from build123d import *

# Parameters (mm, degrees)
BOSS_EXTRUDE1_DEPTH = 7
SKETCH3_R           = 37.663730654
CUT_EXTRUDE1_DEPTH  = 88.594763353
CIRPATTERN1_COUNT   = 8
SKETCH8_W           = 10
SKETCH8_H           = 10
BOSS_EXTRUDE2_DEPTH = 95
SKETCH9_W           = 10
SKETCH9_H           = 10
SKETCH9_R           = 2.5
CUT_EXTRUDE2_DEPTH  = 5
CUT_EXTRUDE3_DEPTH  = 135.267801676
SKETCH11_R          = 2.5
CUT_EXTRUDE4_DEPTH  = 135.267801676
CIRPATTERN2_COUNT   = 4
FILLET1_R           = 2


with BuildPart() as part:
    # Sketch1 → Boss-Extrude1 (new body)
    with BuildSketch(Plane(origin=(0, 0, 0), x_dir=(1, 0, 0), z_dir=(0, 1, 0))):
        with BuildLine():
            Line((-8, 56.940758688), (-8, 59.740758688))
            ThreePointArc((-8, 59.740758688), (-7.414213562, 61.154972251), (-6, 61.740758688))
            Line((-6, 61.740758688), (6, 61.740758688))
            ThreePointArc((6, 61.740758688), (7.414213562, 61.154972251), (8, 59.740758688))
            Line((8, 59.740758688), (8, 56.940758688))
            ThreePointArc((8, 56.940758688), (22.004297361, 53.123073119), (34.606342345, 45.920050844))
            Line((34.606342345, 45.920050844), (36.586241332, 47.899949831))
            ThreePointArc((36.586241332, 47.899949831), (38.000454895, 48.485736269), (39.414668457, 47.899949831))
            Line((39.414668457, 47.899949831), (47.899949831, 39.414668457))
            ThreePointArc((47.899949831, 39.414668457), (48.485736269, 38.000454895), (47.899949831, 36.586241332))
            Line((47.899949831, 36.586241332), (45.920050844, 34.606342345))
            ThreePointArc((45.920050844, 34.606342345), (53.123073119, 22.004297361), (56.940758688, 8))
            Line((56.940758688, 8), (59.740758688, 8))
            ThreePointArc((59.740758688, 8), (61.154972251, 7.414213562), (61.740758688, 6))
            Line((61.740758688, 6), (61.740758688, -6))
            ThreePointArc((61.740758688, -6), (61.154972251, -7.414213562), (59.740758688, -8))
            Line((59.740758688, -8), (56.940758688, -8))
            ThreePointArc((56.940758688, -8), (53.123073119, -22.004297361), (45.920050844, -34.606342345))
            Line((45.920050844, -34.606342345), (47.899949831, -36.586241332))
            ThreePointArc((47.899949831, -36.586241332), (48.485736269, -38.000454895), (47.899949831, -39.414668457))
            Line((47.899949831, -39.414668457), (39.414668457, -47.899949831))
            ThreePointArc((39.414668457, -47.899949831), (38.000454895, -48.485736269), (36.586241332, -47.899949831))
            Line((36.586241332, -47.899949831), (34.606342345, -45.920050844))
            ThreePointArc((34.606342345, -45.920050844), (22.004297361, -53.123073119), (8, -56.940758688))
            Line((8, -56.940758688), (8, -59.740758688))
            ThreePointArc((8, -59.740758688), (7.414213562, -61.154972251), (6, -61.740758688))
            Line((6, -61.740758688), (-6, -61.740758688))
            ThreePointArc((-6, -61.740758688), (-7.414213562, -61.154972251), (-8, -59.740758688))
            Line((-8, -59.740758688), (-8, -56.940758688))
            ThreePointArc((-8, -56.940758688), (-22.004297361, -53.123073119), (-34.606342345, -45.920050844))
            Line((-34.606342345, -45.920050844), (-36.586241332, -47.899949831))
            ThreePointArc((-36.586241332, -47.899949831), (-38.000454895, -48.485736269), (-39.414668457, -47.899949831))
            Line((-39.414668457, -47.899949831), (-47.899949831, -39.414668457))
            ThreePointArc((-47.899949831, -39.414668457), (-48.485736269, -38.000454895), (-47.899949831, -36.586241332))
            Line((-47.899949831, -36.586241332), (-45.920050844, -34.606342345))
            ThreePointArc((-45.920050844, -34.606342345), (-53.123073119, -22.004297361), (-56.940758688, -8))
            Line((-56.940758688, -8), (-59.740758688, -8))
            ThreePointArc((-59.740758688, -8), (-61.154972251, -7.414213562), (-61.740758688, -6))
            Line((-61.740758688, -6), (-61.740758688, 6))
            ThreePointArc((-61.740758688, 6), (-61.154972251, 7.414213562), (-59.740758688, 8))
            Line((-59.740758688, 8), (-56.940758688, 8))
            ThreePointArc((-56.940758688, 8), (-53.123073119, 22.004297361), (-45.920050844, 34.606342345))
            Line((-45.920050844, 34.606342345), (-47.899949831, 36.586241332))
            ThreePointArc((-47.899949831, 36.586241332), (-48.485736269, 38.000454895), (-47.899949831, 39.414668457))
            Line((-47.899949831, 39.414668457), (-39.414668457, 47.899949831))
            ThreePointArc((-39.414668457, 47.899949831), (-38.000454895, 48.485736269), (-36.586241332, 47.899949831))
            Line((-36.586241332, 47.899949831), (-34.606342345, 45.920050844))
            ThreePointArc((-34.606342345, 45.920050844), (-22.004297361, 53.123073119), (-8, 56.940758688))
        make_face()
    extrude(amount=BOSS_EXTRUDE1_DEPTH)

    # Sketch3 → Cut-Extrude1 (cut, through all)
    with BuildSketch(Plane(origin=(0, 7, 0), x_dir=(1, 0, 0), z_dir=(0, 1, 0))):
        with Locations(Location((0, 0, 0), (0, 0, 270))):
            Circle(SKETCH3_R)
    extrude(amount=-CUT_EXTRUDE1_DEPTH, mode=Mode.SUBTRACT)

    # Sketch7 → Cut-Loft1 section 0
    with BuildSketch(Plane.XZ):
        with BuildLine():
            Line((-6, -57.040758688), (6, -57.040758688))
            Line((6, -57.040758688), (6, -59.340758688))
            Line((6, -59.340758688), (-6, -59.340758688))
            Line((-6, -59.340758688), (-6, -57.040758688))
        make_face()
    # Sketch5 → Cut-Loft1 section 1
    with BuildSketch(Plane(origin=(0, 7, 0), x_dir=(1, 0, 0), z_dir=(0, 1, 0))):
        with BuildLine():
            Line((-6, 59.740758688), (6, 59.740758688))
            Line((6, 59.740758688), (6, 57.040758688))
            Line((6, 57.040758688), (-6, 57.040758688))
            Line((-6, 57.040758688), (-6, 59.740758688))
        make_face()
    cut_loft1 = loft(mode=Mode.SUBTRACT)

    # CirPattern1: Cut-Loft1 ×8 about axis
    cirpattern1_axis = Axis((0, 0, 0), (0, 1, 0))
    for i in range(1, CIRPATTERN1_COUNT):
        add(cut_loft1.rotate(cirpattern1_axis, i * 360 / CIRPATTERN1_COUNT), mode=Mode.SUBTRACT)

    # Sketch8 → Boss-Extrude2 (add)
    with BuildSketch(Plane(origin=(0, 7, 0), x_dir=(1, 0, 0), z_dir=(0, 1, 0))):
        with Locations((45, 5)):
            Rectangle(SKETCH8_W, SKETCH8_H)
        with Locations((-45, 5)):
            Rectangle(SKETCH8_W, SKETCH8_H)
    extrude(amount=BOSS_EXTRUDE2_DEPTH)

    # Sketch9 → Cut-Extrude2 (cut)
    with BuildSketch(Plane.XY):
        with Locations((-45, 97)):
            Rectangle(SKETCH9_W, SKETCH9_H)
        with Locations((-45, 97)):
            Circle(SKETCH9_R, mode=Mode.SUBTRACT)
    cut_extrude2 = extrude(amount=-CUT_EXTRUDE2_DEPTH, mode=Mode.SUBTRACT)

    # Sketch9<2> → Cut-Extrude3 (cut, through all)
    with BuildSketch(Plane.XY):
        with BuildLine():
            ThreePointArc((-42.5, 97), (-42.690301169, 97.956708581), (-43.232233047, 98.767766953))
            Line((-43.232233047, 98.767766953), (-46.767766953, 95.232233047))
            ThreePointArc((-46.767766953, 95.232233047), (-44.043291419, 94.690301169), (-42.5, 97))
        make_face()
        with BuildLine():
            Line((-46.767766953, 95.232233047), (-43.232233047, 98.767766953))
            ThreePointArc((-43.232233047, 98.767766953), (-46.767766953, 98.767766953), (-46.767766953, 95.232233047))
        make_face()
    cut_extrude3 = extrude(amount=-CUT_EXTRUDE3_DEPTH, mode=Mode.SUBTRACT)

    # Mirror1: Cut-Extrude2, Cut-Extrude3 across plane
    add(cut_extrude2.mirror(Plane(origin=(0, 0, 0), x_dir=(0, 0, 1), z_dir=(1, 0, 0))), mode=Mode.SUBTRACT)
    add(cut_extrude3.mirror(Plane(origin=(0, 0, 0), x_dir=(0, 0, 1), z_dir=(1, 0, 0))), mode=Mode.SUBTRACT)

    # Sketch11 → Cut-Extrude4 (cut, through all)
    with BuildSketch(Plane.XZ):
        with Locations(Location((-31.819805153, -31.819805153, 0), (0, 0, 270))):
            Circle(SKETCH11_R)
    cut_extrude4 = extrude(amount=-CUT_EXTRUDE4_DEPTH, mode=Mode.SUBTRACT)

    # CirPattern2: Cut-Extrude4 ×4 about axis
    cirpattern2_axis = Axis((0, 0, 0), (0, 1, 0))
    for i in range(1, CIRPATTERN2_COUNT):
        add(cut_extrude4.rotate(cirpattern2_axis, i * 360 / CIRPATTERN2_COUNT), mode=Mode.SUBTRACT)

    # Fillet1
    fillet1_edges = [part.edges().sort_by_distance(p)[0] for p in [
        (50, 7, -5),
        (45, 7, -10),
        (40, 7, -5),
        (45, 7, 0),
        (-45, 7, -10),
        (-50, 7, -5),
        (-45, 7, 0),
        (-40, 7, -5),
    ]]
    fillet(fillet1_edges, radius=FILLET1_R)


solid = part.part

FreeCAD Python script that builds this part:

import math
import FreeCAD as App
import Part
import Sketcher


def edges_at(feature, points):
    """Names of the edges that pass closest to the given points."""
    edges = feature.Shape.Edges
    near = lambda p: min(range(len(edges)), key=lambda i: edges[i].distToShape(Part.Vertex(*p))[0])
    return sorted({f"Edge{near(p) + 1}" for p in points})


def add_polygon(sketch, points):
    """Adds a closed chain of lines whose ends are joined by coincident constraints."""
    first, n = sketch.GeometryCount, len(points)
    for a, b in zip(points, points[1:] + points[:1]):
        sketch.addGeometry(Part.LineSegment(App.Vector(*a, 0), App.Vector(*b, 0)), False)
    for i in range(n):
        sketch.addConstraint(Sketcher.Constraint("Coincident", first + i, 2, first + (i + 1) % n, 1))

doc = App.newDocument("Part")
body = doc.addObject("PartDesign::Body", "Body")

# Sketch on XZ plane
sketch1 = body.newObject("Sketcher::SketchObject", "Sketch")
sketch1.AttachmentSupport = (doc.getObject("XZ_Plane"), [""])
sketch1.MapMode = "FlatFace"
sketch1.addGeometry([
    Part.LineSegment(App.Vector(-8, -59.7, 0), App.Vector(-8, -56.9, 0)),  # 0
    Part.ArcOfCircle(Part.Circle(App.Vector(0, 0, 0), App.Vector(0, 0, 1), 57.5), math.radians(-127), math.radians(-98)),  # 1
    Part.LineSegment(App.Vector(-34.6, -45.9, 0), App.Vector(-36.6, -47.9, 0)),  # 2
    Part.ArcOfCircle(Part.Circle(App.Vector(-38, -46.5, 0), App.Vector(0, 0, 1), 2), math.radians(-135), math.radians(-45)),  # 3
    Part.LineSegment(App.Vector(-39.4, -47.9, 0), App.Vector(-47.9, -39.4, 0)),  # 4
    Part.ArcOfCircle(Part.Circle(App.Vector(-46.5, -38, 0), App.Vector(0, 0, 1), 2), math.radians(135), math.radians(225)),  # 5
    Part.LineSegment(App.Vector(-47.9, -36.6, 0), App.Vector(-45.9, -34.6, 0)),  # 6
    Part.ArcOfCircle(Part.Circle(App.Vector(0, 0, 0), App.Vector(0, 0, 1), 57.5), math.radians(-172), math.radians(-143)),  # 7
    Part.LineSegment(App.Vector(-56.9, -8, 0), App.Vector(-59.7, -8, 0)),  # 8
    Part.ArcOfCircle(Part.Circle(App.Vector(-59.7, -6, 0), App.Vector(0, 0, 1), 2), math.radians(180), math.radians(270)),  # 9
    Part.LineSegment(App.Vector(-61.7, -6, 0), App.Vector(-61.7, 6, 0)),  # 10
    Part.ArcOfCircle(Part.Circle(App.Vector(-59.7, 6, 0), App.Vector(0, 0, 1), 2), math.radians(90), math.radians(180)),  # 11
    Part.LineSegment(App.Vector(-59.7, 8, 0), App.Vector(-56.9, 8, 0)),  # 12
    Part.ArcOfCircle(Part.Circle(App.Vector(0, 0, 0), App.Vector(0, 0, 1), 57.5), math.radians(143), math.radians(172)),  # 13
    Part.LineSegment(App.Vector(-45.9, 34.6, 0), App.Vector(-47.9, 36.6, 0)),  # 14
    Part.ArcOfCircle(Part.Circle(App.Vector(-46.5, 38, 0), App.Vector(0, 0, 1), 2), math.radians(135), math.radians(225)),  # 15
    Part.LineSegment(App.Vector(-47.9, 39.4, 0), App.Vector(-39.4, 47.9, 0)),  # 16
    Part.ArcOfCircle(Part.Circle(App.Vector(-38, 46.5, 0), App.Vector(0, 0, 1), 2), math.radians(45), math.radians(135)),  # 17
    Part.LineSegment(App.Vector(-36.6, 47.9, 0), App.Vector(-34.6, 45.9, 0)),  # 18
    Part.ArcOfCircle(Part.Circle(App.Vector(0, 0, 0), App.Vector(0, 0, 1), 57.5), math.radians(98), math.radians(127)),  # 19
    Part.LineSegment(App.Vector(-8, 56.9, 0), App.Vector(-8, 59.7, 0)),  # 20
    Part.ArcOfCircle(Part.Circle(App.Vector(-6, 59.7, 0), App.Vector(0, 0, 1), 2), math.radians(90), math.radians(180)),  # 21
    Part.LineSegment(App.Vector(-6, 61.7, 0), App.Vector(6, 61.7, 0)),  # 22
    Part.ArcOfCircle(Part.Circle(App.Vector(6, 59.7, 0), App.Vector(0, 0, 1), 2), math.radians(0), math.radians(90)),  # 23
    Part.LineSegment(App.Vector(8, 59.7, 0), App.Vector(8, 56.9, 0)),  # 24
    Part.ArcOfCircle(Part.Circle(App.Vector(0, 0, 0), App.Vector(0, 0, 1), 57.5), math.radians(53), math.radians(82)),  # 25
    Part.LineSegment(App.Vector(34.6, 45.9, 0), App.Vector(36.6, 47.9, 0)),  # 26
    Part.ArcOfCircle(Part.Circle(App.Vector(38, 46.5, 0), App.Vector(0, 0, 1), 2), math.radians(45), math.radians(135)),  # 27
    Part.LineSegment(App.Vector(39.4, 47.9, 0), App.Vector(47.9, 39.4, 0)),  # 28
    Part.ArcOfCircle(Part.Circle(App.Vector(46.5, 38, 0), App.Vector(0, 0, 1), 2), math.radians(-45), math.radians(45)),  # 29
    Part.LineSegment(App.Vector(47.9, 36.6, 0), App.Vector(45.9, 34.6, 0)),  # 30
    Part.ArcOfCircle(Part.Circle(App.Vector(0, 0, 0), App.Vector(0, 0, 1), 57.5), math.radians(8), math.radians(37)),  # 31
    Part.LineSegment(App.Vector(56.9, 8, 0), App.Vector(59.7, 8, 0)),  # 32
    Part.ArcOfCircle(Part.Circle(App.Vector(59.7, 6, 0), App.Vector(0, 0, 1), 2), math.radians(0), math.radians(90)),  # 33
    Part.LineSegment(App.Vector(61.7, 6, 0), App.Vector(61.7, -6, 0)),  # 34
    Part.ArcOfCircle(Part.Circle(App.Vector(59.7, -6, 0), App.Vector(0, 0, 1), 2), math.radians(-90), math.radians(0)),  # 35
    Part.LineSegment(App.Vector(59.7, -8, 0), App.Vector(56.9, -8, 0)),  # 36
    Part.ArcOfCircle(Part.Circle(App.Vector(0, 0, 0), App.Vector(0, 0, 1), 57.5), math.radians(-37), math.radians(-8)),  # 37
    Part.LineSegment(App.Vector(45.9, -34.6, 0), App.Vector(47.9, -36.6, 0)),  # 38
    Part.ArcOfCircle(Part.Circle(App.Vector(46.5, -38, 0), App.Vector(0, 0, 1), 2), math.radians(-45), math.radians(45)),  # 39
    Part.LineSegment(App.Vector(47.9, -39.4, 0), App.Vector(39.4, -47.9, 0)),  # 40
    Part.ArcOfCircle(Part.Circle(App.Vector(38, -46.5, 0), App.Vector(0, 0, 1), 2), math.radians(-135), math.radians(-45)),  # 41
    Part.LineSegment(App.Vector(36.6, -47.9, 0), App.Vector(34.6, -45.9, 0)),  # 42
    Part.ArcOfCircle(Part.Circle(App.Vector(0, 0, 0), App.Vector(0, 0, 1), 57.5), math.radians(-82), math.radians(-53)),  # 43
    Part.LineSegment(App.Vector(8, -56.9, 0), App.Vector(8, -59.7, 0)),  # 44
    Part.ArcOfCircle(Part.Circle(App.Vector(6, -59.7, 0), App.Vector(0, 0, 1), 2), math.radians(-90), math.radians(0)),  # 45
    Part.LineSegment(App.Vector(6, -61.7, 0), App.Vector(-6, -61.7, 0)),  # 46
    Part.ArcOfCircle(Part.Circle(App.Vector(-6, -59.7, 0), App.Vector(0, 0, 1), 2), math.radians(180), math.radians(270)),  # 47
], False)
sketch1.addConstraint([
    Sketcher.Constraint("Coincident", 0, 2, 1, 2),
    Sketcher.Constraint("Coincident", 1, 1, 2, 1),
    Sketcher.Constraint("Tangent", 2, 2, 3, 2),
    Sketcher.Constraint("Tangent", 3, 1, 4, 1),
    Sketcher.Constraint("Tangent", 4, 2, 5, 2),
    Sketcher.Constraint("Tangent", 5, 1, 6, 1),
    Sketcher.Constraint("Coincident", 6, 2, 7, 2),
    Sketcher.Constraint("Coincident", 7, 1, 8, 1),
    Sketcher.Constraint("Tangent", 8, 2, 9, 2),
    Sketcher.Constraint("Tangent", 9, 1, 10, 1),
    Sketcher.Constraint("Tangent", 10, 2, 11, 2),
    Sketcher.Constraint("Tangent", 11, 1, 12, 1),
    Sketcher.Constraint("Coincident", 12, 2, 13, 2),
    Sketcher.Constraint("Coincident", 13, 1, 14, 1),
    Sketcher.Constraint("Tangent", 14, 2, 15, 2),
    Sketcher.Constraint("Tangent", 15, 1, 16, 1),
    Sketcher.Constraint("Tangent", 16, 2, 17, 2),
    Sketcher.Constraint("Tangent", 17, 1, 18, 1),
    Sketcher.Constraint("Coincident", 18, 2, 19, 2),
    Sketcher.Constraint("Coincident", 19, 1, 20, 1),
    Sketcher.Constraint("Tangent", 20, 2, 21, 2),
    Sketcher.Constraint("Tangent", 21, 1, 22, 1),
    Sketcher.Constraint("Tangent", 22, 2, 23, 2),
    Sketcher.Constraint("Tangent", 23, 1, 24, 1),
    Sketcher.Constraint("Coincident", 24, 2, 25, 2),
    Sketcher.Constraint("Coincident", 25, 1, 26, 1),
    Sketcher.Constraint("Tangent", 26, 2, 27, 2),
    Sketcher.Constraint("Tangent", 27, 1, 28, 1),
    Sketcher.Constraint("Tangent", 28, 2, 29, 2),
    Sketcher.Constraint("Tangent", 29, 1, 30, 1),
    Sketcher.Constraint("Coincident", 30, 2, 31, 2),
    Sketcher.Constraint("Coincident", 31, 1, 32, 1),
    Sketcher.Constraint("Tangent", 32, 2, 33, 2),
    Sketcher.Constraint("Tangent", 33, 1, 34, 1),
    Sketcher.Constraint("Tangent", 34, 2, 35, 2),
    Sketcher.Constraint("Tangent", 35, 1, 36, 1),
    Sketcher.Constraint("Coincident", 36, 2, 37, 2),
    Sketcher.Constraint("Coincident", 37, 1, 38, 1),
    Sketcher.Constraint("Tangent", 38, 2, 39, 2),
    Sketcher.Constraint("Tangent", 39, 1, 40, 1),
    Sketcher.Constraint("Tangent", 40, 2, 41, 2),
    Sketcher.Constraint("Tangent", 41, 1, 42, 1),
    Sketcher.Constraint("Coincident", 42, 2, 43, 2),
    Sketcher.Constraint("Coincident", 43, 1, 44, 1),
    Sketcher.Constraint("Tangent", 44, 2, 45, 2),
    Sketcher.Constraint("Tangent", 45, 1, 46, 1),
    Sketcher.Constraint("Tangent", 46, 2, 47, 2),
    Sketcher.Constraint("Tangent", 47, 1, 0, 1),
    Sketcher.Constraint("Vertical", 0),
    Sketcher.Constraint("Horizontal", 8),
    Sketcher.Constraint("Vertical", 10),
    Sketcher.Constraint("Horizontal", 12),
    Sketcher.Constraint("Vertical", 20),
    Sketcher.Constraint("Horizontal", 22),
    Sketcher.Constraint("Vertical", 24),
    Sketcher.Constraint("Horizontal", 32),
    Sketcher.Constraint("Vertical", 34),
    Sketcher.Constraint("Horizontal", 36),
    Sketcher.Constraint("Vertical", 44),
    Sketcher.Constraint("Horizontal", 46),
    Sketcher.Constraint("Coincident", 1, 3, -1, 1),
    Sketcher.Constraint("Coincident", 7, 3, -1, 1),
    Sketcher.Constraint("Coincident", 13, 3, -1, 1),
    Sketcher.Constraint("Coincident", 19, 3, -1, 1),
    Sketcher.Constraint("Coincident", 25, 3, -1, 1),
    Sketcher.Constraint("Coincident", 31, 3, -1, 1),
    Sketcher.Constraint("Coincident", 37, 3, -1, 1),
    Sketcher.Constraint("Coincident", 43, 3, -1, 1),
    Sketcher.Constraint("Equal", 3, 5),
    Sketcher.Constraint("Equal", 1, 7),
    Sketcher.Constraint("Equal", 5, 9),
    Sketcher.Constraint("Equal", 9, 11),
    Sketcher.Constraint("Equal", 7, 13),
    Sketcher.Constraint("Equal", 11, 15),
    Sketcher.Constraint("Equal", 15, 17),
    Sketcher.Constraint("Equal", 13, 19),
    Sketcher.Constraint("Equal", 17, 21),
    Sketcher.Constraint("Equal", 21, 23),
    Sketcher.Constraint("Equal", 19, 25),
    Sketcher.Constraint("Equal", 23, 27),
    Sketcher.Constraint("Equal", 27, 29),
    Sketcher.Constraint("Equal", 25, 31),
    Sketcher.Constraint("Equal", 29, 33),
    Sketcher.Constraint("Equal", 33, 35),
    Sketcher.Constraint("Equal", 31, 37),
    Sketcher.Constraint("Equal", 35, 39),
    Sketcher.Constraint("Equal", 39, 41),
    Sketcher.Constraint("Equal", 37, 43),
    Sketcher.Constraint("Equal", 41, 45),
    Sketcher.Constraint("Equal", 45, 47),
    Sketcher.Constraint("Symmetric", 3, 3, 27, 3, -1, 1),
    Sketcher.Constraint("Symmetric", 5, 3, 29, 3, -1, 1),
    Sketcher.Constraint("Symmetric", 9, 3, 33, 3, -1, 1),
    Sketcher.Constraint("Symmetric", 15, 3, 39, 3, -1, 1),
    Sketcher.Constraint("Symmetric", 17, 3, 41, 3, -1, 1),
    Sketcher.Constraint("Symmetric", 21, 3, 45, 3, -1, 1),
    Sketcher.Constraint("Symmetric", 17, 3, 27, 3, -2),
    Sketcher.Constraint("Symmetric", 15, 3, 29, 3, -2),
    Sketcher.Constraint("Perpendicular", 2, 4),
    Sketcher.Constraint("Perpendicular", 4, 6),
    Sketcher.Constraint("Perpendicular", 6, 14),
    Sketcher.Constraint("Perpendicular", 14, 16),
    Sketcher.Constraint("Perpendicular", 16, 18),
    Sketcher.Constraint("Perpendicular", 18, 26),
    Sketcher.Constraint("Perpendicular", 28, 30),
    Sketcher.Constraint("Perpendicular", 30, 38),
    Sketcher.Constraint("Perpendicular", 40, 42),
    Sketcher.Constraint("Horizontal", 11, 3, 33, 3),
    Sketcher.Constraint("Horizontal", 9, 3, 35, 3),
    Sketcher.Constraint("Horizontal", 19, 1, 24, 2),
    Sketcher.Constraint("Horizontal", 0, 2, 43, 1),
    Sketcher.Constraint("Equal", 36, 0),
    Sketcher.Constraint("Equal", 46, 10),
    Sketcher.Constraint("Equal", 2, 6),
    Sketcher.Constraint("Radius", 3, 2.0),
    Sketcher.Constraint("Radius", 1, 57.5),
    Sketcher.Constraint("DistanceX", 22, 1, 22, 2, 12.0),
    Sketcher.Constraint("Distance", 4, 12.0),
    Sketcher.Constraint("DistanceX", 8, 2, 8, 1, 2.8),
    Sketcher.Constraint("Distance", 2, 2.8),
])
pad1 = body.newObject("PartDesign::Pad", "Pad")
pad1.Profile = sketch1
pad1.Length = 7
pad1.Reversed = True

# Sketch on XZ plane
sketch2 = body.newObject("Sketcher::SketchObject", "Sketch001")
sketch2.AttachmentSupport = (doc.getObject("XZ_Plane"), [""])
sketch2.MapMode = "FlatFace"
sketch2.AttachmentOffset = App.Placement(App.Vector(0, 0, -7), App.Rotation())
sketch2.addGeometry(Part.Circle(App.Vector(0, 0, 0), App.Vector(0, 0, 1), 38), False)
sketch2.addConstraint([
    Sketcher.Constraint("Coincident", 0, 3, -1, 1),
    Sketcher.Constraint("Diameter", 0, 75.327461),
])
pocket1 = body.newObject("PartDesign::Pocket", "Pocket")
pocket1.Profile = sketch2
pocket1.Type = "ThroughAll"
pocket1.Reversed = True

# Sketch on XZ plane
sketch3 = body.newObject("Sketcher::SketchObject", "Sketch002")
sketch3.AttachmentSupport = (doc.getObject("XZ_Plane"), [""])
sketch3.MapMode = "FlatFace"
add_polygon(sketch3, [(6, -57), (-6, -57), (-6, -59.3), (6, -59.3)])  # lines 0-3
sketch3.addConstraint([
    Sketcher.Constraint("Horizontal", 0),
    Sketcher.Constraint("Vertical", 1),
    Sketcher.Constraint("Horizontal", 2),
    Sketcher.Constraint("Vertical", 3),
    Sketcher.Constraint("DistanceX", 0, 2, 0, 1, 12.0),
    Sketcher.Constraint("DistanceY", 1, 2, 1, 1, 2.3),
    Sketcher.Constraint("DistanceX", 0, 2, -1, 1, 6.0),
    Sketcher.Constraint("DistanceY", 0, 2, -1, 1, 57.040759),
])

# Sketch on XZ plane
sketch4 = body.newObject("Sketcher::SketchObject", "Sketch003")
sketch4.AttachmentSupport = (doc.getObject("XZ_Plane"), [""])
sketch4.MapMode = "FlatFace"
sketch4.AttachmentOffset = App.Placement(App.Vector(0, 0, -7), App.Rotation())
add_polygon(sketch4, [(6, -59.7), (-6, -59.7), (-6, -57), (6, -57)])  # lines 0-3
sketch4.addConstraint([
    Sketcher.Constraint("Horizontal", 0),
    Sketcher.Constraint("Vertical", 1),
    Sketcher.Constraint("Horizontal", 2),
    Sketcher.Constraint("Vertical", 3),
    Sketcher.Constraint("DistanceX", 0, 2, 0, 1, 12.0),
    Sketcher.Constraint("DistanceY", 1, 1, 1, 2, 2.7),
    Sketcher.Constraint("DistanceX", 0, 2, -1, 1, 6.0),
    Sketcher.Constraint("DistanceY", 0, 2, -1, 1, 59.740759),
])

subtractiveloft = body.newObject("PartDesign::SubtractiveLoft", "SubtractiveLoft")
subtractiveloft.Profile = sketch3
subtractiveloft.Sections = [sketch4]
doc.recompute()

polarpattern = body.newObject("PartDesign::PolarPattern", "PolarPattern")
polarpattern.Originals = [subtractiveloft]
polarpattern.Axis = (doc.getObject("Y_Axis"), [""])
polarpattern.Angle = 360
polarpattern.Occurrences = 8
body.Tip = polarpattern

# Sketch on XZ plane
sketch5 = body.newObject("Sketcher::SketchObject", "Sketch004")
sketch5.AttachmentSupport = (doc.getObject("XZ_Plane"), [""])
sketch5.MapMode = "FlatFace"
sketch5.AttachmentOffset = App.Placement(App.Vector(0, 0, -7), App.Rotation())
add_polygon(sketch5, [(40, -10), (40, 0), (50, 0), (50, -10)])  # lines 0-3
add_polygon(sketch5, [(-50, -10), (-50, 0), (-40, 0), (-40, -10)])  # lines 4-7
sketch5.addConstraint([
    Sketcher.Constraint("Vertical", 0),
    Sketcher.Constraint("Horizontal", 1),
    Sketcher.Constraint("Vertical", 2),
    Sketcher.Constraint("Horizontal", 3),
    Sketcher.Constraint("Vertical", 4),
    Sketcher.Constraint("Horizontal", 5),
    Sketcher.Constraint("Vertical", 6),
    Sketcher.Constraint("Horizontal", 7),
    Sketcher.Constraint("Symmetric", 1, 2, 4, 2, -1, 1),
    Sketcher.Constraint("Symmetric", 0, 2, 5, 2, -2),
    Sketcher.Constraint("Horizontal", 3, 2, 6, 2),
    Sketcher.Constraint("Equal", 7, 0),
    Sketcher.Constraint("DistanceX", 1, 1, 1, 2, 10.0),
    Sketcher.Constraint("DistanceX", -1, 1, 0, 2, 40.0),
])
pad2 = body.newObject("PartDesign::Pad", "Pad001")
pad2.Profile = sketch5
pad2.Length = 95
pad2.Reversed = True

# Sketch on XY plane
sketch6 = body.newObject("Sketcher::SketchObject", "Sketch005")
sketch6.AttachmentSupport = (doc.getObject("XY_Plane"), [""])
sketch6.MapMode = "FlatFace"
add_polygon(sketch6, [(-50, 102), (-50, 92), (-40, 92), (-40, 102)])  # lines 0-3
sketch6.addGeometry(Part.Circle(App.Vector(-45, 97, 0), App.Vector(0, 0, 1), 2.5), False)  # 4
sketch6.addConstraint([
    Sketcher.Constraint("Vertical", 0),
    Sketcher.Constraint("Horizontal", 1),
    Sketcher.Constraint("Vertical", 2),
    Sketcher.Constraint("Horizontal", 3),
    Sketcher.Constraint("Equal", 3, 0),
    Sketcher.Constraint("Diameter", 4, 5.0),
    Sketcher.Constraint("DistanceX", 1, 1, 1, 2, 10.0),
    Sketcher.Constraint("DistanceX", 4, 3, -1, 1, 45.0),
    Sketcher.Constraint("DistanceY", -1, 1, 4, 3, 97.0),
    Sketcher.Constraint("DistanceX", 0, 2, -1, 1, 50.0),
    Sketcher.Constraint("DistanceY", -1, 1, 0, 2, 92.0),
])
pocket2 = body.newObject("PartDesign::Pocket", "Pocket001")
pocket2.Profile = sketch6
pocket2.Length = 5

# Sketch on XY plane
sketch7 = body.newObject("Sketcher::SketchObject", "Sketch006")
sketch7.AttachmentSupport = (doc.getObject("XY_Plane"), [""])
sketch7.MapMode = "FlatFace"
sketch7.addGeometry([
    Part.ArcOfCircle(Part.Circle(App.Vector(-45, 97, 0), App.Vector(0, 0, 1), 2.5), math.radians(0), math.radians(45)),
    Part.ArcOfCircle(Part.Circle(App.Vector(-45, 97, 0), App.Vector(0, 0, 1), 2.5), math.radians(45), math.radians(225)),
    Part.ArcOfCircle(Part.Circle(App.Vector(-45, 97, 0), App.Vector(0, 0, 1), 2.5), math.radians(-135), math.radians(0)),
], False)
sketch7.addConstraint([
    Sketcher.Constraint("Tangent", 0, 2, 1, 1),
    Sketcher.Constraint("Tangent", 1, 2, 2, 1),
    Sketcher.Constraint("Tangent", 2, 2, 0, 1),
    Sketcher.Constraint("Horizontal", 1, 3, 2, 2),
    Sketcher.Constraint("Radius", 0, 2.5),
    Sketcher.Constraint("DistanceX", 0, 3, -1, 1, 45.0),
    Sketcher.Constraint("DistanceY", -1, 1, 0, 3, 97.0),
    Sketcher.Constraint("DistanceX", 0, 2, -1, 1, 43.232233),
    Sketcher.Constraint("DistanceX", 1, 2, -1, 1, 46.767767),
])
pocket3 = body.newObject("PartDesign::Pocket", "Pocket002")
pocket3.Profile = sketch7
pocket3.Type = "ThroughAll"
doc.recompute()

mirrored = body.newObject("PartDesign::Mirrored", "Mirrored")
mirrored.Originals = [pocket2, pocket3]
mirrored.MirrorPlane = (doc.getObject("YZ_Plane"), [""])
body.Tip = mirrored

# Sketch on XZ plane
sketch8 = body.newObject("Sketcher::SketchObject", "Sketch007")
sketch8.AttachmentSupport = (doc.getObject("XZ_Plane"), [""])
sketch8.MapMode = "FlatFace"
sketch8.addGeometry(Part.Circle(App.Vector(-31.8, -31.8, 0), App.Vector(0, 0, 1), 2.5), False)
sketch8.addConstraint([
    Sketcher.Constraint("Diameter", 0, 5.0),
    Sketcher.Constraint("DistanceX", 0, 3, -1, 1, 31.819805),
    Sketcher.Constraint("DistanceY", 0, 3, -1, 1, 31.819805),
])
pocket4 = body.newObject("PartDesign::Pocket", "Pocket003")
pocket4.Profile = sketch8
pocket4.Type = "ThroughAll"
doc.recompute()

polarpattern2 = body.newObject("PartDesign::PolarPattern", "PolarPattern001")
polarpattern2.Originals = [pocket4]
polarpattern2.Axis = (doc.getObject("Y_Axis"), [""])
polarpattern2.Angle = 360
polarpattern2.Occurrences = 4
body.Tip = polarpattern2
doc.recompute()

fillet = body.newObject("PartDesign::Fillet", "Fillet")
fillet.Base = (polarpattern2, edges_at(polarpattern2, [
    (50, 7, -5),
    (45, 7, -10),
    (40, 7, -5),
    (45, 7, 0),
    (-45, 7, -10),
    (-50, 7, -5),
    (-45, 7, 0),
    (-40, 7, -5),
]))
fillet.Radius = 2

doc.recompute()
